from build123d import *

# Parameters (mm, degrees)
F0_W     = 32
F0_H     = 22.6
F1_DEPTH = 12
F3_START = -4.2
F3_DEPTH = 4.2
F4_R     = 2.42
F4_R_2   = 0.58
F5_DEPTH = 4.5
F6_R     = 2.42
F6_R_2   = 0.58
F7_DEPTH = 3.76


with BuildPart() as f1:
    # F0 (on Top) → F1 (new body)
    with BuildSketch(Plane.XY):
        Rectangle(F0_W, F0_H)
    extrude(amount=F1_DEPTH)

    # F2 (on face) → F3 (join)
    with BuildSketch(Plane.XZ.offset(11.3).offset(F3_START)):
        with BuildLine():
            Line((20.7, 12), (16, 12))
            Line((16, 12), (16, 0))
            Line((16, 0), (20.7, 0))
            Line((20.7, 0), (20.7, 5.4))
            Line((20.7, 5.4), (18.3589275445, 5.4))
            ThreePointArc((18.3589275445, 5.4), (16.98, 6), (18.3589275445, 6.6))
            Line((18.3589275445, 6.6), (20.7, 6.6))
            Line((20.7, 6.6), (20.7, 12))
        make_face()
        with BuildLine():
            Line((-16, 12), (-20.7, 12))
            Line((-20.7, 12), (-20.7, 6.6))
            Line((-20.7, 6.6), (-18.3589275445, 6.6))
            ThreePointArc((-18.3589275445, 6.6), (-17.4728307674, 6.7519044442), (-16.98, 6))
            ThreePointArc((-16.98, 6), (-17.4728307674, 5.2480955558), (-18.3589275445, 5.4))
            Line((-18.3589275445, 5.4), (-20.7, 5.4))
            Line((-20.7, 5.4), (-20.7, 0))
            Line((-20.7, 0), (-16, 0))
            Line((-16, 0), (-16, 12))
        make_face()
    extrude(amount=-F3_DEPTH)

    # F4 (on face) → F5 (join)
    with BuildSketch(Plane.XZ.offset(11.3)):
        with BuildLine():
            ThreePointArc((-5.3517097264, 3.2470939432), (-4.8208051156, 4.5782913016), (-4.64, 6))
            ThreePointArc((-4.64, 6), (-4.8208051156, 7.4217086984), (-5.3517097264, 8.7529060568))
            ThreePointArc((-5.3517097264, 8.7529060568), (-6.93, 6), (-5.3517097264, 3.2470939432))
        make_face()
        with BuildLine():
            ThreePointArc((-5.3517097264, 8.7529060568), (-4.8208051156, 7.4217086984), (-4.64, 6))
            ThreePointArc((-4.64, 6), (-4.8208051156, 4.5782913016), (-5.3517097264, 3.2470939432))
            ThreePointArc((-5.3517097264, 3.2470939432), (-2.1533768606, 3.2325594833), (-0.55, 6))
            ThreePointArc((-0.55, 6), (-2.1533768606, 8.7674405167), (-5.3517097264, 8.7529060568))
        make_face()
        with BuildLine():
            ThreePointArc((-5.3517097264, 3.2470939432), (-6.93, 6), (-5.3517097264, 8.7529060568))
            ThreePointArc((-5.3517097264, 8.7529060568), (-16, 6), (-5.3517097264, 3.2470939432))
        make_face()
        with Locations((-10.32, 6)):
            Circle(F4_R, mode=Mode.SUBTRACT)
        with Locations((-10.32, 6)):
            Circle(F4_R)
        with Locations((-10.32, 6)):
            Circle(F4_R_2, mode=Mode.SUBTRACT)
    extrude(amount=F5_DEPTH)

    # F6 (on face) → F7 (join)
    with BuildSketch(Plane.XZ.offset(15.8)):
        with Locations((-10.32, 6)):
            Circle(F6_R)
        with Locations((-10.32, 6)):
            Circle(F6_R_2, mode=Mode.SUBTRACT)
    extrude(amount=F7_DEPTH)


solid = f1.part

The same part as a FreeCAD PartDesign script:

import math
import FreeCAD as App
import Part
import Sketcher

V = App.Vector
Q = App.Units.Quantity


def add_polygon(sketch, points):
    """Adds a closed chain of lines whose ends are joined by coincident constraints."""
    first, n = sketch.GeometryCount, len(points)
    for a, b in zip(points, points[1:] + points[:1]):
        sketch.addGeometry(Part.LineSegment(App.Vector(*a, 0), App.Vector(*b, 0)), False)
    for i in range(n):
        sketch.addConstraint(Sketcher.Constraint("Coincident", first + i, 2, first + (i + 1) % n, 1))

doc = App.newDocument("Part")
body = doc.addObject("PartDesign::Body", "Body")

sketch1 = body.newObject("Sketcher::SketchObject", "Sketch")
sketch1.AttachmentSupport = (doc.getObject("XY_Plane"), [""])
sketch1.MapMode = "FlatFace"
add_polygon(sketch1, [(-16, 11.3), (-16, -11.3), (16, -11.3), (16, 11.3)])
sketch1.addConstraint([
    Sketcher.Constraint("Vertical", 0),
    Sketcher.Constraint("Horizontal", 1),
    Sketcher.Constraint("Vertical", 2),
    Sketcher.Constraint("Horizontal", 3),
    Sketcher.Constraint("Symmetric", 0, 2, 2, 2, -1, 1),
    Sketcher.Constraint("DistanceX", 1, 1, 1, 2, Q("32 mm")),
    Sketcher.Constraint("DistanceY", 0, 2, 0, 1, Q("22.6 mm")),
])
pad1 = body.newObject("PartDesign::Pad", "Pad")
pad1.Profile = sketch1
pad1.Length = 12

sketch2 = body.newObject("Sketcher::SketchObject", "Sketch001")
sketch2.AttachmentSupport = (doc.getObject("XZ_Plane"), [""])
sketch2.MapMode = "FlatFace"
sketch2.AttachmentOffset = App.Placement(V(0, 0, 7.1), App.Rotation())
sketch2.addGeometry([
    Part.LineSegment(V(20.7, 12, 0), V(16, 12, 0)),
    Part.LineSegment(V(16, 12, 0), V(16, 0, 0)),
    Part.LineSegment(V(16, 0, 0), V(20.7, 0, 0)),
    Part.LineSegment(V(20.7, 0, 0), V(20.7, 5.4, 0)),
    Part.LineSegment(V(20.7, 5.4, 0), V(18.358928, 5.4, 0)),
    Part.ArcOfCircle(Part.Circle(V(17.8, 6, 0), V(0, 0, 1), 0.82), math.radians(47.029716), math.radians(312.970284)),
    Part.LineSegment(V(18.358928, 6.6, 0), V(20.7, 6.6, 0)),
    Part.LineSegment(V(20.7, 6.6, 0), V(20.7, 12, 0)),
    Part.LineSegment(V(-16, 12, 0), V(-20.7, 12, 0)),
    Part.LineSegment(V(-20.7, 12, 0), V(-20.7, 6.6, 0)),
    Part.LineSegment(V(-20.7, 6.6, 0), V(-18.358928, 6.6, 0)),
    Part.ArcOfCircle(Part.Circle(V(-17.8, 6, 0), V(0, 0, 1), 0.82), math.radians(0), math.radians(132.970284)),
    Part.ArcOfCircle(Part.Circle(V(-17.8, 6, 0), V(0, 0, 1), 0.82), math.radians(-132.970284), math.radians(0)),
    Part.LineSegment(V(-18.358928, 5.4, 0), V(-20.7, 5.4, 0)),
    Part.LineSegment(V(-20.7, 5.4, 0), V(-20.7, 0, 0)),
    Part.LineSegment(V(-20.7, 0, 0), V(-16, 0, 0)),
    Part.LineSegment(V(-16, 0, 0), V(-16, 12, 0)),
], False)
sketch2.addConstraint([
    Sketcher.Constraint("Coincident", 0, 2, 1, 1),
    Sketcher.Constraint("Coincident", 1, 2, 2, 1),
    Sketcher.Constraint("Coincident", 2, 2, 3, 1),
    Sketcher.Constraint("Coincident", 3, 2, 4, 1),
    Sketcher.Constraint("Coincident", 4, 2, 5, 2),
    Sketcher.Constraint("Coincident", 5, 1, 6, 1),
    Sketcher.Constraint("Coincident", 6, 2, 7, 1),
    Sketcher.Constraint("Coincident", 7, 2, 0, 1),
    Sketcher.Constraint("Coincident", 8, 2, 9, 1),
    Sketcher.Constraint("Coincident", 9, 2, 10, 1),
    Sketcher.Constraint("Coincident", 10, 2, 11, 2),
    Sketcher.Constraint("Tangent", 11, 1, 12, 2),
    Sketcher.Constraint("Coincident", 12, 1, 13, 1),
    Sketcher.Constraint("Coincident", 13, 2, 14, 1),
    Sketcher.Constraint("Coincident", 14, 2, 15, 1),
    Sketcher.Constraint("Coincident", 15, 2, 16, 1),
    Sketcher.Constraint("Coincident", 16, 2, 8, 1),
    Sketcher.Constraint("Horizontal", 0),
    Sketcher.Constraint("Vertical", 1),
    Sketcher.Constraint("Horizontal", 2),
    Sketcher.Constraint("Vertical", 3),
    Sketcher.Constraint("Horizontal", 4),
    Sketcher.Constraint("Horizontal", 6),
    Sketcher.Constraint("Vertical", 7),
    Sketcher.Constraint("Horizontal", 8),
    Sketcher.Constraint("Vertical", 9),
    Sketcher.Constraint("Horizontal", 10),
    Sketcher.Constraint("Horizontal", 13),
    Sketcher.Constraint("Vertical", 14),
    Sketcher.Constraint("Horizontal", 15),
    Sketcher.Constraint("Vertical", 16),
    Sketcher.Constraint("Equal", 5, 11),
    Sketcher.Constraint("Equal", 11, 12),
    Sketcher.Constraint("Symmetric", 2, 2, 14, 2, -1, 1),
    Sketcher.Constraint("Symmetric", 5, 3, 11, 3, -2),
    Sketcher.Constraint("Symmetric", 7, 2, 8, 2, -2),
    Sketcher.Constraint("Symmetric", 1, 2, 15, 2, -2),
    Sketcher.Constraint("Horizontal", 6, 2, 9, 2),
    Sketcher.Constraint("Horizontal", 12, 3, 11, 1),
    Sketcher.Constraint("Horizontal", 4, 2, 12, 1),
    Sketcher.Constraint("Vertical", 4, 2, 5, 1),
    Sketcher.Constraint("Vertical", 3, 2, 6, 2),
    Sketcher.Constraint("Equal", 3, 7),
    Sketcher.Constraint("DistanceY", 1, 2, 1, 1, Q("12 mm")),
    Sketcher.Constraint("Radius", 5, Q("0.82 mm")),
    Sketcher.Constraint("DistanceX", 0, 2, 0, 1, Q("4.7 mm")),
    Sketcher.Constraint("DistanceY", 3, 1, 3, 2, Q("5.4 mm")),
    Sketcher.Constraint("DistanceX", -1, 1, 0, 2, Q("16 mm")),
    Sketcher.Constraint("DistanceX", -1, 1, 5, 3, Q("17.8 mm")),
])
pad2 = body.newObject("PartDesign::Pad", "Pad001")
pad2.Profile = sketch2
pad2.Length = 4.2
pad2.Reversed = True

sketch3 = body.newObject("Sketcher::SketchObject", "Sketch002")
sketch3.AttachmentSupport = (doc.getObject("XZ_Plane"), [""])
sketch3.MapMode = "FlatFace"
sketch3.AttachmentOffset = App.Placement(V(0, 0, 11.3), App.Rotation())
sketch3.addGeometry([
    Part.ArcOfCircle(Part.Circle(V(-3.74, 6, 0), V(0, 0, 1), 3.19), math.radians(-120.347163), math.radians(0)),
    Part.ArcOfCircle(Part.Circle(V(-3.74, 6, 0), V(0, 0, 1), 3.19), math.radians(0), math.radians(120.347163)),
    Part.ArcOfCircle(Part.Circle(V(-10.32, 6, 0), V(0, 0, 1), 5.68), math.radians(28.990629), math.radians(331.009371)),
    Part.Circle(V(-10.32, 6, 0), V(0, 0, 1), 0.58),
], False)
sketch3.addConstraint([
    Sketcher.Constraint("Tangent", 0, 2, 1, 1),
    Sketcher.Constraint("Coincident", 1, 2, 2, 1),
    Sketcher.Constraint("Coincident", 2, 2, 0, 1),
    Sketcher.Constraint("Coincident", 3, 3, 2, 3),
    Sketcher.Constraint("Equal", 0, 1),
    Sketcher.Constraint("Horizontal", 1, 3, 2, 3),
    Sketcher.Constraint("Horizontal", 3, 3, 0, 2),
    Sketcher.Constraint("Diameter", 3, Q("1.16 mm")),
    Sketcher.Constraint("Radius", 0, Q("3.19 mm")),
    Sketcher.Constraint("Radius", 2, Q("5.68 mm")),
    Sketcher.Constraint("DistanceY", -1, 1, 0, 3, Q("6 mm")),
    Sketcher.Constraint("DistanceX", 0, 3, -1, 1, Q("3.74 mm")),
    Sketcher.Constraint("DistanceX", 2, 3, -1, 1, Q("10.32 mm")),
])
pad3 = body.newObject("PartDesign::Pad", "Pad002")
pad3.Profile = sketch3
pad3.Length = 4.5

sketch4 = body.newObject("Sketcher::SketchObject", "Sketch003")
sketch4.AttachmentSupport = (doc.getObject("XZ_Plane"), [""])
sketch4.MapMode = "FlatFace"
sketch4.AttachmentOffset = App.Placement(V(0, 0, 15.8), App.Rotation())
sketch4.addGeometry([
    Part.Circle(V(-10.32, 6, 0), V(0, 0, 1), 2.42),
    Part.Circle(V(-10.32, 6, 0), V(0, 0, 1), 0.58),
], False)
sketch4.addConstraint([
    Sketcher.Constraint("Coincident", 1, 3, 0, 3),
    Sketcher.Constraint("Diameter", 0, Q("4.84 mm")),
    Sketcher.Constraint("Diameter", 1, Q("1.16 mm")),
    Sketcher.Constraint("DistanceY", -1, 1, 0, 3, Q("6 mm")),
    Sketcher.Constraint("DistanceX", 0, 3, -1, 1, Q("10.32 mm")),
])
pad4 = body.newObject("PartDesign::Pad", "Pad003")
pad4.Profile = sketch4
pad4.Length = 3.76

doc.recompute()
